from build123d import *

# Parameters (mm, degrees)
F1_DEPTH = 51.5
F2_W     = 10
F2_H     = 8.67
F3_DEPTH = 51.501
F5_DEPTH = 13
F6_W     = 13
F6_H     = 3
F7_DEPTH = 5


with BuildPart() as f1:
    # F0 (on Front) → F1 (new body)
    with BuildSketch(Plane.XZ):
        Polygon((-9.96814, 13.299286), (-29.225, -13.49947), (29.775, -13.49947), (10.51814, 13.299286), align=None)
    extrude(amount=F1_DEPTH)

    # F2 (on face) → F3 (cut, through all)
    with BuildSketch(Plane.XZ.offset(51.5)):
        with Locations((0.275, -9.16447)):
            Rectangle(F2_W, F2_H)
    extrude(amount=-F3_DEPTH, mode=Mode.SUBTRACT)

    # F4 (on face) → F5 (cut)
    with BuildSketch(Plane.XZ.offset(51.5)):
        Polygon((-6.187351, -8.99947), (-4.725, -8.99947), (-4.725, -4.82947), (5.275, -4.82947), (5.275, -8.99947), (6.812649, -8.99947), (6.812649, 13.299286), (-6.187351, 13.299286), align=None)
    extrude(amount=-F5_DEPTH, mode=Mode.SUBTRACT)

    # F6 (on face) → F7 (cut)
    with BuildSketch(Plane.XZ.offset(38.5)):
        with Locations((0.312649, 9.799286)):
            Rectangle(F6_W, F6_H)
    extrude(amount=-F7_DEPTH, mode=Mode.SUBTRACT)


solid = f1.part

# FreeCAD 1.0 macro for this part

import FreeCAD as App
import Part
import Sketcher

V = App.Vector
Q = App.Units.Quantity

doc = App.newDocument("Part")
params = doc.addObject("Spreadsheet::Sheet", "Params")
for row, (alias, value) in enumerate([
    ("sketch1_width", "59 mm"),
    ("sketch1_length", "33 mm"),
    ("pad1_length", "51.5 mm"),
    ("sketch2_width", "10 mm"),
    ("sketch2_height", "8.67 mm"),
    ("sketch3_width", "10 mm"),
    ("sketch3_width2", "13 mm"),
    ("sketch3_height", "4.17 mm"),
    ("pocket2_length", "13 mm"),
    ("sketch4_width", "13 mm"),
    ("sketch4_height", "3 mm"),
    ("pocket3_length", "5 mm"),
], start=1):
    params.set(f"A{row}", alias)
    params.set(f"B{row}", "=" + value)
    params.setAlias(f"B{row}", alias)

body = doc.addObject("PartDesign::Body", "Body")

# Sketch on XZ plane
sketch1 = doc.addObject("Sketcher::SketchObject", "Sketch")
body.addObject(sketch1)
sketch1.AttachmentSupport = (doc.XZ_Plane, [""])
sketch1.MapMode = "FlatFace"
sketch1.addGeometry([
    Part.LineSegment(V(-10, 13, 0), V(-29, -13, 0)),
    Part.LineSegment(V(-29, -13, 0), V(30, -13, 0)),
    Part.LineSegment(V(30, -13, 0), V(11, 13, 0)),
    Part.LineSegment(V(11, 13, 0), V(-10, 13, 0)),
], False)
sketch1.addConstraint([
    Sketcher.Constraint("Coincident", 0, 2, 1, 1),
    Sketcher.Constraint("Coincident", 1, 2, 2, 1),
    Sketcher.Constraint("Coincident", 2, 2, 3, 1),
    Sketcher.Constraint("Coincident", 3, 2, 0, 1),
    Sketcher.Constraint("Horizontal", 1),
    Sketcher.Constraint("Horizontal", 3),
    Sketcher.Constraint("Equal", 0, 2),
    Sketcher.Constraint("DistanceX", 1, 1, 1, 2, 59.0),
    Sketcher.Constraint("Distance", 0, 33.0),
    Sketcher.Constraint("Angle", 0, Q("-125.7 deg")),
    Sketcher.Constraint("DistanceX", 0, 2, -1, 1, 29.225),
    Sketcher.Constraint("DistanceY", 0, 2, -1, 1, 13.49947),
])
sketch1.setExpression("Constraints[7]", "Params.sketch1_width")
sketch1.setExpression("Constraints[8]", "Params.sketch1_length")
pad1 = doc.addObject("PartDesign::Pad", "Pad")
body.addObject(pad1)
pad1.Profile = sketch1
pad1.setExpression("Length", "Params.pad1_length")

# Sketch on XZ plane
sketch2 = doc.addObject("Sketcher::SketchObject", "Sketch001")
body.addObject(sketch2)
sketch2.AttachmentSupport = (doc.XZ_Plane, [""])
sketch2.MapMode = "FlatFace"
sketch2.AttachmentOffset = App.Placement(V(0, 0, 51.5), App.Rotation())
sketch2.addGeometry([
    Part.LineSegment(V(-5, -5, 0), V(-5, -13, 0)),
    Part.LineSegment(V(-5, -13, 0), V(5, -13, 0)),
    Part.LineSegment(V(5, -13, 0), V(5, -5, 0)),
    Part.LineSegment(V(5, -5, 0), V(-5, -5, 0)),
], False)
sketch2.addConstraint([
    Sketcher.Constraint("Coincident", 0, 2, 1, 1),
    Sketcher.Constraint("Coincident", 1, 2, 2, 1),
    Sketcher.Constraint("Coincident", 2, 2, 3, 1),
    Sketcher.Constraint("Coincident", 3, 2, 0, 1),
    Sketcher.Constraint("Vertical", 0),
    Sketcher.Constraint("Horizontal", 1),
    Sketcher.Constraint("Vertical", 2),
    Sketcher.Constraint("Horizontal", 3),
    Sketcher.Constraint("DistanceX", 1, 1, 1, 2, 10.0),
    Sketcher.Constraint("DistanceY", 0, 2, 0, 1, 8.67),
    Sketcher.Constraint("DistanceX", 0, 2, -1, 1, 4.725),
    Sketcher.Constraint("DistanceY", 0, 2, -1, 1, 13.49947),
])
sketch2.setExpression("Constraints[8]", "Params.sketch2_width")
sketch2.setExpression("Constraints[9]", "Params.sketch2_height")
pocket1 = doc.addObject("PartDesign::Pocket", "Pocket")
body.addObject(pocket1)
pocket1.Profile = sketch2
pocket1.Type = "ThroughAll"

# Sketch on XZ plane
sketch3 = doc.addObject("Sketcher::SketchObject", "Sketch002")
body.addObject(sketch3)
sketch3.AttachmentSupport = (doc.XZ_Plane, [""])
sketch3.MapMode = "FlatFace"
sketch3.AttachmentOffset = App.Placement(V(0, 0, 51.5), App.Rotation())
sketch3.addGeometry([
    Part.LineSegment(V(-6.2, -9, 0), V(-4.7, -9, 0)),  # 0
    Part.LineSegment(V(-4.7, -9, 0), V(-4.7, -4.8, 0)),  # 1
    Part.LineSegment(V(-4.7, -4.8, 0), V(5.3, -4.8, 0)),  # 2
    Part.LineSegment(V(5.3, -4.8, 0), V(5.3, -9, 0)),  # 3
    Part.LineSegment(V(5.3, -9, 0), V(6.8, -9, 0)),  # 4
    Part.LineSegment(V(6.8, -9, 0), V(6.8, 13.3, 0)),  # 5
    Part.LineSegment(V(6.8, 13.3, 0), V(-6.2, 13.3, 0)),  # 6
    Part.LineSegment(V(-6.2, 13.3, 0), V(-6.2, -9, 0)),  # 7
], False)
sketch3.addConstraint([
    Sketcher.Constraint("Coincident", 0, 2, 1, 1),
    Sketcher.Constraint("Coincident", 1, 2, 2, 1),
    Sketcher.Constraint("Coincident", 2, 2, 3, 1),
    Sketcher.Constraint("Coincident", 3, 2, 4, 1),
    Sketcher.Constraint("Coincident", 4, 2, 5, 1),
    Sketcher.Constraint("Coincident", 5, 2, 6, 1),
    Sketcher.Constraint("Coincident", 6, 2, 7, 1),
    Sketcher.Constraint("Coincident", 7, 2, 0, 1),
    Sketcher.Constraint("Horizontal", 0),
    Sketcher.Constraint("Vertical", 1),
    Sketcher.Constraint("Horizontal", 2),
    Sketcher.Constraint("Vertical", 3),
    Sketcher.Constraint("Horizontal", 4),
    Sketcher.Constraint("Vertical", 5),
    Sketcher.Constraint("Horizontal", 6),
    Sketcher.Constraint("Vertical", 7),
    Sketcher.Constraint("Horizontal", 0, 2, 3, 2),
    Sketcher.Constraint("DistanceX", 2, 1, 2, 2, 10.0),
    Sketcher.Constraint("DistanceX", 6, 2, 6, 1, 13.0),
    Sketcher.Constraint("DistanceY", 1, 1, 1, 2, 4.17),
    Sketcher.Constraint("DistanceX", 0, 2, -1, 1, 4.725),
    Sketcher.Constraint("DistanceX", 0, 1, 0, 2, 1.462351),
    Sketcher.Constraint("DistanceY", 5, 1, 5, 2, 22.298756),
    Sketcher.Constraint("DistanceY", 0, 2, -1, 1, 8.99947),
])
sketch3.setExpression("Constraints[17]", "Params.sketch3_width")
sketch3.setExpression("Constraints[18]", "Params.sketch3_width2")
sketch3.setExpression("Constraints[19]", "Params.sketch3_height")
pocket2 = doc.addObject("PartDesign::Pocket", "Pocket001")
body.addObject(pocket2)
pocket2.Profile = sketch3
pocket2.setExpression("Length", "Params.pocket2_length")

# Sketch on XZ plane
sketch4 = doc.addObject("Sketcher::SketchObject", "Sketch003")
body.addObject(sketch4)
sketch4.AttachmentSupport = (doc.XZ_Plane, [""])
sketch4.MapMode = "FlatFace"
sketch4.AttachmentOffset = App.Placement(V(0, 0, 38.5), App.Rotation())
sketch4.addGeometry([
    Part.LineSegment(V(-6.2, 11.3, 0), V(-6.2, 8.3, 0)),
    Part.LineSegment(V(-6.2, 8.3, 0), V(6.8, 8.3, 0)),
    Part.LineSegment(V(6.8, 8.3, 0), V(6.8, 11.3, 0)),
    Part.LineSegment(V(6.8, 11.3, 0), V(-6.2, 11.3, 0)),
], False)
sketch4.addConstraint([
    Sketcher.Constraint("Coincident", 0, 2, 1, 1),
    Sketcher.Constraint("Coincident", 1, 2, 2, 1),
    Sketcher.Constraint("Coincident", 2, 2, 3, 1),
    Sketcher.Constraint("Coincident", 3, 2, 0, 1),
    Sketcher.Constraint("Vertical", 0),
    Sketcher.Constraint("Horizontal", 1),
    Sketcher.Constraint("Vertical", 2),
    Sketcher.Constraint("Horizontal", 3),
    Sketcher.Constraint("DistanceX", 1, 1, 1, 2, 13.0),
    Sketcher.Constraint("DistanceY", 0, 2, 0, 1, 3.0),
    Sketcher.Constraint("DistanceX", 0, 2, -1, 1, 6.187351),
    Sketcher.Constraint("DistanceY", -1, 1, 0, 2, 8.299286),
])
sketch4.setExpression("Constraints[8]", "Params.sketch4_width")
sketch4.setExpression("Constraints[9]", "Params.sketch4_height")
pocket3 = doc.addObject("PartDesign::Pocket", "Pocket002")
body.addObject(pocket3)
pocket3.Profile = sketch4
pocket3.setExpression("Length", "Params.pocket3_length")

doc.recompute()
